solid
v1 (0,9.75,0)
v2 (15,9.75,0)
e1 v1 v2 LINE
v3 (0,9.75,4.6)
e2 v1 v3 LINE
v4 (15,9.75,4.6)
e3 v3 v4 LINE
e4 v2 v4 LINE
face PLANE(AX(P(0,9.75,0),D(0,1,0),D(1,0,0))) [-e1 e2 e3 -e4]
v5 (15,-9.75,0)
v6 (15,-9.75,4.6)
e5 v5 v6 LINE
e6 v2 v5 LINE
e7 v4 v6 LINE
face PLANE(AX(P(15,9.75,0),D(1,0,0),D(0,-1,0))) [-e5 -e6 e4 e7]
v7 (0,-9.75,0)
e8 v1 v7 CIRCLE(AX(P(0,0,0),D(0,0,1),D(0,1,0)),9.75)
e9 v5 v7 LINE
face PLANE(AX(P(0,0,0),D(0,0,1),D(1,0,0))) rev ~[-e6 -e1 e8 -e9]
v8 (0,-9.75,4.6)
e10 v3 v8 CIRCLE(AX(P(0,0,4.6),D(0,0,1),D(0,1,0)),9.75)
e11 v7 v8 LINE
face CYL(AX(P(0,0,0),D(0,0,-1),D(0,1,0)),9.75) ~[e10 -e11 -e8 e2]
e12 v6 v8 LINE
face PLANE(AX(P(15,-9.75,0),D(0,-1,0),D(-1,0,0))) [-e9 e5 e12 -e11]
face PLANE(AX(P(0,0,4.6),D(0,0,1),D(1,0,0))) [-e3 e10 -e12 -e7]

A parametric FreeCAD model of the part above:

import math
import FreeCAD as App
import Part
import Sketcher
Q = App.Units.Quantity

doc = App.newDocument("Part")
body = doc.addObject("PartDesign::Body", "Body")

# Sketch on XY plane
sketch1 = body.newObject("Sketcher::SketchObject", "Sketch")
sketch1.AttachmentSupport = (doc.getObject("XY_Plane"), [""])
sketch1.MapMode = "FlatFace"
sketch1.addGeometry([
    Part.LineSegment(App.Vector(15, 10, 0), App.Vector(0, 10, 0)),
    Part.ArcOfCircle(Part.Circle(App.Vector(0, 0, 0), App.Vector(0, 0, 1), 10), math.radians(90), math.radians(270)),
    Part.LineSegment(App.Vector(0, -10, 0), App.Vector(15, -10, 0)),
    Part.LineSegment(App.Vector(15, -10, 0), App.Vector(15, 10, 0)),
], False)
sketch1.addConstraint([
    Sketcher.Constraint("Tangent", 0, 2, 1, 1),
    Sketcher.Constraint("Tangent", 1, 2, 2, 1),
    Sketcher.Constraint("Coincident", 2, 2, 3, 1),
    Sketcher.Constraint("Coincident", 3, 2, 0, 1),
    Sketcher.Constraint("Horizontal", 0),
    Sketcher.Constraint("Horizontal", 2),
    Sketcher.Constraint("Vertical", 3),
    Sketcher.Constraint("Coincident", 1, 3, -1, 1),
    Sketcher.Constraint("DistanceX", 0, 2, 0, 1, Q("15 mm")),
    Sketcher.Constraint("Radius", 1, Q("9.75 mm")),
])
pad1 = body.newObject("PartDesign::Pad", "Pad")
pad1.Profile = sketch1
pad1.Length = 4.6

doc.recompute()
